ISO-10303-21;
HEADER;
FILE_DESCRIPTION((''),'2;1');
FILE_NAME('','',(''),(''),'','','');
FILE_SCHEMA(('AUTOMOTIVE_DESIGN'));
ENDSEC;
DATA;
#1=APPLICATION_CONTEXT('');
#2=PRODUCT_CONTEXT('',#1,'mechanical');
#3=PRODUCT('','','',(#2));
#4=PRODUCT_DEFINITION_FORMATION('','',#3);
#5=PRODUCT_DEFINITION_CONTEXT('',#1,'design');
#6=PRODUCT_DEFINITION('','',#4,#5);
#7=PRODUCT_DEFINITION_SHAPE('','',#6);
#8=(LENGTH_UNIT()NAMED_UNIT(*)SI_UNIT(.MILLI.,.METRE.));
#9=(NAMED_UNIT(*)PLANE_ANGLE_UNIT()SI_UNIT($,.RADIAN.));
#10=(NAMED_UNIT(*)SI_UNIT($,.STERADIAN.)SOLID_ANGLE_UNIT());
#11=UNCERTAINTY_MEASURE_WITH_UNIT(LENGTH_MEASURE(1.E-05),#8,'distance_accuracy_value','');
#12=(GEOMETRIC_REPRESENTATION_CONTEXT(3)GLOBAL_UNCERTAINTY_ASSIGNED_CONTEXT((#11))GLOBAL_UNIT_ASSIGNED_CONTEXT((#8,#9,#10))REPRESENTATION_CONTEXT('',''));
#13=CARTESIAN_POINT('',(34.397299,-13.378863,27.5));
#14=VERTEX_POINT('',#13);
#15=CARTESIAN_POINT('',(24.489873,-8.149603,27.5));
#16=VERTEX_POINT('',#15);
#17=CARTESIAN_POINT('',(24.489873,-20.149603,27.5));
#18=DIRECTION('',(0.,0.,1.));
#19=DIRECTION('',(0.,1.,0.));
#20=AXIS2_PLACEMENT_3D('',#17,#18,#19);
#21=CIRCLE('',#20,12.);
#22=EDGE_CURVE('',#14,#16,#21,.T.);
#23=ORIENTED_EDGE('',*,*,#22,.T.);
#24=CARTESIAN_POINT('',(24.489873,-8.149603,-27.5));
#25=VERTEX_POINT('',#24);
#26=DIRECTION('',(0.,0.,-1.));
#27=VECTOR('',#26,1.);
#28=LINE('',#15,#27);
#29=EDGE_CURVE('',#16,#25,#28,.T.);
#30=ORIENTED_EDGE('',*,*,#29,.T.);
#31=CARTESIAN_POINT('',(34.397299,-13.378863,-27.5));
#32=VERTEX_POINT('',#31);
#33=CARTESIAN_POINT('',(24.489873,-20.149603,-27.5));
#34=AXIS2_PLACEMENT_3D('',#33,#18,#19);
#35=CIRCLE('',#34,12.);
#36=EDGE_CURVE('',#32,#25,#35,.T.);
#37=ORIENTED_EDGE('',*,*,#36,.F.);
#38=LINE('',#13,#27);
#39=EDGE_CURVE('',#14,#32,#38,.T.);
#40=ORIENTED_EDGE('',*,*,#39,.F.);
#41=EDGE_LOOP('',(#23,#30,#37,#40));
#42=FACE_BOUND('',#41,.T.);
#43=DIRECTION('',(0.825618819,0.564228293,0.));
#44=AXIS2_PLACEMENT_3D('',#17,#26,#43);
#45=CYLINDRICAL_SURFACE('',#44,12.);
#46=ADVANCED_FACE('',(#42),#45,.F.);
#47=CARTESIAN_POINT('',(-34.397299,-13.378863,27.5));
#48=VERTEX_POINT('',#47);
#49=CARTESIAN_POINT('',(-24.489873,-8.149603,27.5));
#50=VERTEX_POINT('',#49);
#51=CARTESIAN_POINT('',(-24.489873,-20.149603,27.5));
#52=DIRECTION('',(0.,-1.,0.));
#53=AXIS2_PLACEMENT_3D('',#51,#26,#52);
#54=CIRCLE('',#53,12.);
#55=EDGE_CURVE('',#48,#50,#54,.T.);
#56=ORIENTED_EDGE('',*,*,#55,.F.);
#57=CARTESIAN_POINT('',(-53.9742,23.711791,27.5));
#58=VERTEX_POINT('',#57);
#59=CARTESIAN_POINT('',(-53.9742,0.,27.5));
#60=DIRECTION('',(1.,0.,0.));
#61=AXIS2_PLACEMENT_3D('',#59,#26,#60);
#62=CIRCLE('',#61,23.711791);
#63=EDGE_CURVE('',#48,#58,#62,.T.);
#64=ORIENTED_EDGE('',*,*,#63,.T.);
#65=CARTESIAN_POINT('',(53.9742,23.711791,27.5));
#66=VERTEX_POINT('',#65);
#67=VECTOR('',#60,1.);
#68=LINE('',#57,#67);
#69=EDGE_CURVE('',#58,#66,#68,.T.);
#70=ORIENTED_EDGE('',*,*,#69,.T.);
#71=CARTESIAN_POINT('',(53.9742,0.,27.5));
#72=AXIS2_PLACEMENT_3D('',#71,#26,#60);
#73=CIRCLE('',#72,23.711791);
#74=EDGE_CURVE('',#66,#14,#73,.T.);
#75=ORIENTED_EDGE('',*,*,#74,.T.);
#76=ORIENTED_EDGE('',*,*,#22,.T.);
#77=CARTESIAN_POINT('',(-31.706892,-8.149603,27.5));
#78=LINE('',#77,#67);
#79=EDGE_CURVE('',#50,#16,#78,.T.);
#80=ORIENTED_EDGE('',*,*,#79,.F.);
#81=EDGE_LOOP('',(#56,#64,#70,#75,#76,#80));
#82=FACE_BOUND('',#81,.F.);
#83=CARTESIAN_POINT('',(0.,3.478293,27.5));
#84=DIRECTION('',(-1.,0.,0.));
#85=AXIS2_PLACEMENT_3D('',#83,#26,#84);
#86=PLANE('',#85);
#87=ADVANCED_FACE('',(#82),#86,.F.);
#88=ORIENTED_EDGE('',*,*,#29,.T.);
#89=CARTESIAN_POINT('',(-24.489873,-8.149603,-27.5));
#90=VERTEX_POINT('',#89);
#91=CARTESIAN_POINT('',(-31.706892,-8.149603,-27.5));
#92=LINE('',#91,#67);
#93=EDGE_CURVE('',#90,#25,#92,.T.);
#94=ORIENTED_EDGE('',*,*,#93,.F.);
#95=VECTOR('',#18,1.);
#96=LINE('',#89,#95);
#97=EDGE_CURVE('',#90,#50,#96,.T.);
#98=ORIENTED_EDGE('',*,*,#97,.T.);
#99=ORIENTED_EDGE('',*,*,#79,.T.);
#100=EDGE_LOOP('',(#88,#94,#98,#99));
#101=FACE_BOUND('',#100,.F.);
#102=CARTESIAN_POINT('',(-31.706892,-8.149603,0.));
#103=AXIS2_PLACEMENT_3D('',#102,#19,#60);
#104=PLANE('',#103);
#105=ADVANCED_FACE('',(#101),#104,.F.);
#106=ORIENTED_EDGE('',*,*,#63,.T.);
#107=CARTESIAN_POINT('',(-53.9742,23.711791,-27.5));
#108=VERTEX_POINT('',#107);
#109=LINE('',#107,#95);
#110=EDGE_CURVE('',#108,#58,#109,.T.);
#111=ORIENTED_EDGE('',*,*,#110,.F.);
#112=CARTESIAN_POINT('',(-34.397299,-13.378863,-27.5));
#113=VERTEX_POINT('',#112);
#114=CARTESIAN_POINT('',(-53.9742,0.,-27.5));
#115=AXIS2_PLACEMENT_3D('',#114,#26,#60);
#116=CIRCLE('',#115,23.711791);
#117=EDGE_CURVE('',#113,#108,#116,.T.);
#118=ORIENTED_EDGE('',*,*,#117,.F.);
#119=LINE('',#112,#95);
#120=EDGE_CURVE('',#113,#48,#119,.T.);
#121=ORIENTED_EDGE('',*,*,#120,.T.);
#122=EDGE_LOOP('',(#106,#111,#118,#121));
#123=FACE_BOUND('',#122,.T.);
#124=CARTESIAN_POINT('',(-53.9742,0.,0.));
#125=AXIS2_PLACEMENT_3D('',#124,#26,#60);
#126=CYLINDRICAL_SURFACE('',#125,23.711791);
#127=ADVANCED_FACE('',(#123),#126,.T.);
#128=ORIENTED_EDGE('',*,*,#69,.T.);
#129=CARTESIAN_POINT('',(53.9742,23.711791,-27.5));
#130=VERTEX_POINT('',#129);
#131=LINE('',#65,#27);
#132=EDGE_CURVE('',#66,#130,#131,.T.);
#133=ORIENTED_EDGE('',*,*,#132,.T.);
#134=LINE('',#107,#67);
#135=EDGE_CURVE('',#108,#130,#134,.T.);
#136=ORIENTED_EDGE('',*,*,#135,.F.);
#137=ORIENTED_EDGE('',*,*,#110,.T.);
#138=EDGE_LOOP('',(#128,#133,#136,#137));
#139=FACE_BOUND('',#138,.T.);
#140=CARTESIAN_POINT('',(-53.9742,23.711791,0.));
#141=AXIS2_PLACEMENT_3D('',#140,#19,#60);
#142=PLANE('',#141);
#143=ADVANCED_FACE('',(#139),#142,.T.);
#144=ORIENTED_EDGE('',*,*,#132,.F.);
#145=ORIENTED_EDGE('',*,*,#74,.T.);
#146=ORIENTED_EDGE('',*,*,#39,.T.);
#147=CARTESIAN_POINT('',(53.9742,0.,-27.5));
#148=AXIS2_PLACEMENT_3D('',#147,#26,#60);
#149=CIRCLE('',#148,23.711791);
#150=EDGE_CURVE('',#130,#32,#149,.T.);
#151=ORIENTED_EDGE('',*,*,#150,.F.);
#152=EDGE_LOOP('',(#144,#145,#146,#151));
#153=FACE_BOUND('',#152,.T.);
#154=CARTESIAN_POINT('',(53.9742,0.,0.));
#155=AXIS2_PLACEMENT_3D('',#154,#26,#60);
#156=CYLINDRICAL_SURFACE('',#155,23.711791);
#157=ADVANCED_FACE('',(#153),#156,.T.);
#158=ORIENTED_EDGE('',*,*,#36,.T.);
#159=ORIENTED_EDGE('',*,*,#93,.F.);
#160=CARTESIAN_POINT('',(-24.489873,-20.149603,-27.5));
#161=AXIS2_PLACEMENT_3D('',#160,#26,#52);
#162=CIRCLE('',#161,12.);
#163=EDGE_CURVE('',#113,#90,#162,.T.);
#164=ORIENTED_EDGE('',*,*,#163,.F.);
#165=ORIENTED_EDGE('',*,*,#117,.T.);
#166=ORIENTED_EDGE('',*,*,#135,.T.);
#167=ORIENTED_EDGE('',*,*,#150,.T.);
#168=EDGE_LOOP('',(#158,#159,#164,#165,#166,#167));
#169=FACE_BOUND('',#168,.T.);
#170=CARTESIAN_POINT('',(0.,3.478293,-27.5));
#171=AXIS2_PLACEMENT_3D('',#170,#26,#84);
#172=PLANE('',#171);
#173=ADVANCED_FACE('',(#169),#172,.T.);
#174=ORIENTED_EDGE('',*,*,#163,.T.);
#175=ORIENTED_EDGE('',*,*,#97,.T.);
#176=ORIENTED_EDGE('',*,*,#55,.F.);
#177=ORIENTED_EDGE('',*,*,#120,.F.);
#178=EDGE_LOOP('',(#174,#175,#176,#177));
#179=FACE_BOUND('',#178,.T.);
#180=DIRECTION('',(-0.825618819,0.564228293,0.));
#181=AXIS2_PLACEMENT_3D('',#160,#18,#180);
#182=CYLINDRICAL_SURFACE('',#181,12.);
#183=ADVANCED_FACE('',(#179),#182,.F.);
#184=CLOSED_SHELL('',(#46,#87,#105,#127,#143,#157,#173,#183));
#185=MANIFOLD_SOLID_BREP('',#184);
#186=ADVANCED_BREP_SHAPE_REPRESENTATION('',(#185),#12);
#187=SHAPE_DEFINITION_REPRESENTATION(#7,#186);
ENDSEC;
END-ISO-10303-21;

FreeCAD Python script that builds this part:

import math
import FreeCAD as App
import Part
import Sketcher

V = App.Vector
Q = App.Units.Quantity


def edges_at(feature, points):
    """Names of the edges that pass closest to the given points."""
    edges = feature.Shape.Edges
    near = lambda p: min(range(len(edges)), key=lambda i: edges[i].distToShape(Part.Vertex(*p))[0])
    return sorted({f"Edge{near(p) + 1}" for p in points})

doc = App.newDocument("Part")
params = doc.addObject("Spreadsheet::Sheet", "Params")
for row, (alias, value) in enumerate([
    ("pad1_length", "55 mm"),
    ("fillet_radius", "12 mm"),
], start=1):
    params.set(f"A{row}", alias)
    params.set(f"B{row}", "=" + value)
    params.setAlias(f"B{row}", alias)

body = doc.addObject("PartDesign::Body", "Body")

# Sketch on XY plane
sketch1 = doc.addObject("Sketcher::SketchObject", "Sketch")
body.addObject(sketch1)
sketch1.AttachmentSupport = (doc.XY_Plane, [""])
sketch1.MapMode = "FlatFace"
sketch1.addGeometry(Part.LineSegment(V(54, 24, 0), V(-54, 24, 0)), False)
sketch1.addGeometry(Part.ArcOfCircle(Part.Circle(V(-54, 0, 0), V(0, 0, 1), 24), math.radians(90), math.radians(340)), False)
sketch1.addGeometry(Part.LineSegment(V(-32, -8, 0), V(32, -8, 0)), False)
sketch1.addGeometry(Part.ArcOfCircle(Part.Circle(V(54, 0, 0), V(0, 0, 1), 24), math.radians(-160), math.radians(90)), False)
sketch1.addConstraint(Sketcher.Constraint("Tangent", 0, 2, 1, 1))
sketch1.addConstraint(Sketcher.Constraint("Coincident", 1, 2, 2, 1))
sketch1.addConstraint(Sketcher.Constraint("Coincident", 2, 2, 3, 1))
sketch1.addConstraint(Sketcher.Constraint("Tangent", 3, 2, 0, 1))
sketch1.addConstraint(Sketcher.Constraint("Horizontal", 0))
sketch1.addConstraint(Sketcher.Constraint("Horizontal", 2))
sketch1.addConstraint(Sketcher.Constraint("Equal", 1, 3))
sketch1.addConstraint(Sketcher.Constraint("Symmetric", 1, 3, 3, 3, -1, 1))
sketch1.addConstraint(Sketcher.Constraint("Radius", 1, Q("23.7118 mm")))
sketch1.addConstraint(Sketcher.Constraint("DistanceX", 0, 2, 0, 1, Q("107.9484 mm")))
sketch1.addConstraint(Sketcher.Constraint("DistanceX", 2, 1, 2, 2, Q("63.4138 mm")))
pad1 = doc.addObject("PartDesign::Pad", "Pad")
body.addObject(pad1)
pad1.Profile = sketch1
pad1.setExpression("Length", "Params.pad1_length")
pad1.Midplane = True
doc.recompute()

fillet = doc.addObject("PartDesign::Fillet", "Fillet")
body.addObject(fillet)
fillet.Base = (pad1, edges_at(pad1, [(-31.707, -8.15, 0), (31.707, -8.15, 0)]))
fillet.setExpression("Radius", "Params.fillet_radius")

doc.recompute()
